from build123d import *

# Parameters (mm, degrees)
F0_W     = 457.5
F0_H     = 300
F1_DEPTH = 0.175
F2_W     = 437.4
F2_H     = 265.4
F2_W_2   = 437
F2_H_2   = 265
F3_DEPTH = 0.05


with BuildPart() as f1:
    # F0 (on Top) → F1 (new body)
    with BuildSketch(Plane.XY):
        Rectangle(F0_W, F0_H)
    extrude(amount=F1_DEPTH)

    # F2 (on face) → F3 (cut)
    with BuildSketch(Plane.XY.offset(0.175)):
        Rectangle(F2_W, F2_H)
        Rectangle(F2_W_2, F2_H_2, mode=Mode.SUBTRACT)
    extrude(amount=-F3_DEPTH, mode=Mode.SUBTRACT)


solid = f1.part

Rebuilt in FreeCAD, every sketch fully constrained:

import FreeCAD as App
import Part
import Sketcher

V = App.Vector


def add_polygon(sketch, points):
    """Adds a closed chain of lines whose ends are joined by coincident constraints."""
    first, n = sketch.GeometryCount, len(points)
    for a, b in zip(points, points[1:] + points[:1]):
        sketch.addGeometry(Part.LineSegment(App.Vector(*a, 0), App.Vector(*b, 0)), False)
    for i in range(n):
        sketch.addConstraint(Sketcher.Constraint("Coincident", first + i, 2, first + (i + 1) % n, 1))

doc = App.newDocument("Part")
body = doc.addObject("PartDesign::Body", "Body")

# Sketch on XY plane
sketch1 = body.newObject("Sketcher::SketchObject", "Sketch")
sketch1.AttachmentSupport = (doc.getObject("XY_Plane"), [""])
sketch1.MapMode = "FlatFace"
add_polygon(sketch1, [(-228.75, 150), (-228.75, -150), (228.75, -150), (228.75, 150)])  # lines 0-3
sketch1.addConstraint([
    Sketcher.Constraint("Vertical", 0),
    Sketcher.Constraint("Horizontal", 1),
    Sketcher.Constraint("Vertical", 2),
    Sketcher.Constraint("Horizontal", 3),
    Sketcher.Constraint("Symmetric", 0, 2, 2, 2, -1, 1),
    Sketcher.Constraint("DistanceY", 0, 2, 0, 1, 300.0),
    Sketcher.Constraint("DistanceX", 1, 1, 1, 2, 457.5),
])
pad1 = body.newObject("PartDesign::Pad", "Pad")
pad1.Profile = sketch1
pad1.Length = 0.175

# Sketch on XY plane
sketch2 = body.newObject("Sketcher::SketchObject", "Sketch001")
sketch2.AttachmentSupport = (doc.getObject("XY_Plane"), [""])
sketch2.MapMode = "FlatFace"
sketch2.AttachmentOffset = App.Placement(V(0, 0, 0.175), App.Rotation())
add_polygon(sketch2, [(-218.7, 132.7), (-218.7, -132.7), (218.7, -132.7), (218.7, 132.7)])  # lines 0-3
add_polygon(sketch2, [(218.5, -132.5), (-218.5, -132.5), (-218.5, 132.5), (218.5, 132.5)])  # lines 4-7
sketch2.addConstraint([
    Sketcher.Constraint("Vertical", 0),
    Sketcher.Constraint("Horizontal", 1),
    Sketcher.Constraint("Vertical", 2),
    Sketcher.Constraint("Horizontal", 3),
    Sketcher.Constraint("Horizontal", 4),
    Sketcher.Constraint("Vertical", 5),
    Sketcher.Constraint("Horizontal", 6),
    Sketcher.Constraint("Vertical", 7),
    Sketcher.Constraint("Symmetric", 0, 2, 2, 2, -1, 1),
    Sketcher.Constraint("Symmetric", 4, 2, 6, 2, -1, 1),
    Sketcher.Constraint("DistanceX", 4, 2, 4, 1, 437.0),
    Sketcher.Constraint("DistanceY", 5, 1, 5, 2, 265.0),
    Sketcher.Constraint("DistanceX", 1, 1, 1, 2, 437.4),
    Sketcher.Constraint("DistanceY", 0, 2, 0, 1, 265.4),
])
pocket1 = body.newObject("PartDesign::Pocket", "Pocket")
pocket1.Profile = sketch2
pocket1.Length = 0.05

doc.recompute()
